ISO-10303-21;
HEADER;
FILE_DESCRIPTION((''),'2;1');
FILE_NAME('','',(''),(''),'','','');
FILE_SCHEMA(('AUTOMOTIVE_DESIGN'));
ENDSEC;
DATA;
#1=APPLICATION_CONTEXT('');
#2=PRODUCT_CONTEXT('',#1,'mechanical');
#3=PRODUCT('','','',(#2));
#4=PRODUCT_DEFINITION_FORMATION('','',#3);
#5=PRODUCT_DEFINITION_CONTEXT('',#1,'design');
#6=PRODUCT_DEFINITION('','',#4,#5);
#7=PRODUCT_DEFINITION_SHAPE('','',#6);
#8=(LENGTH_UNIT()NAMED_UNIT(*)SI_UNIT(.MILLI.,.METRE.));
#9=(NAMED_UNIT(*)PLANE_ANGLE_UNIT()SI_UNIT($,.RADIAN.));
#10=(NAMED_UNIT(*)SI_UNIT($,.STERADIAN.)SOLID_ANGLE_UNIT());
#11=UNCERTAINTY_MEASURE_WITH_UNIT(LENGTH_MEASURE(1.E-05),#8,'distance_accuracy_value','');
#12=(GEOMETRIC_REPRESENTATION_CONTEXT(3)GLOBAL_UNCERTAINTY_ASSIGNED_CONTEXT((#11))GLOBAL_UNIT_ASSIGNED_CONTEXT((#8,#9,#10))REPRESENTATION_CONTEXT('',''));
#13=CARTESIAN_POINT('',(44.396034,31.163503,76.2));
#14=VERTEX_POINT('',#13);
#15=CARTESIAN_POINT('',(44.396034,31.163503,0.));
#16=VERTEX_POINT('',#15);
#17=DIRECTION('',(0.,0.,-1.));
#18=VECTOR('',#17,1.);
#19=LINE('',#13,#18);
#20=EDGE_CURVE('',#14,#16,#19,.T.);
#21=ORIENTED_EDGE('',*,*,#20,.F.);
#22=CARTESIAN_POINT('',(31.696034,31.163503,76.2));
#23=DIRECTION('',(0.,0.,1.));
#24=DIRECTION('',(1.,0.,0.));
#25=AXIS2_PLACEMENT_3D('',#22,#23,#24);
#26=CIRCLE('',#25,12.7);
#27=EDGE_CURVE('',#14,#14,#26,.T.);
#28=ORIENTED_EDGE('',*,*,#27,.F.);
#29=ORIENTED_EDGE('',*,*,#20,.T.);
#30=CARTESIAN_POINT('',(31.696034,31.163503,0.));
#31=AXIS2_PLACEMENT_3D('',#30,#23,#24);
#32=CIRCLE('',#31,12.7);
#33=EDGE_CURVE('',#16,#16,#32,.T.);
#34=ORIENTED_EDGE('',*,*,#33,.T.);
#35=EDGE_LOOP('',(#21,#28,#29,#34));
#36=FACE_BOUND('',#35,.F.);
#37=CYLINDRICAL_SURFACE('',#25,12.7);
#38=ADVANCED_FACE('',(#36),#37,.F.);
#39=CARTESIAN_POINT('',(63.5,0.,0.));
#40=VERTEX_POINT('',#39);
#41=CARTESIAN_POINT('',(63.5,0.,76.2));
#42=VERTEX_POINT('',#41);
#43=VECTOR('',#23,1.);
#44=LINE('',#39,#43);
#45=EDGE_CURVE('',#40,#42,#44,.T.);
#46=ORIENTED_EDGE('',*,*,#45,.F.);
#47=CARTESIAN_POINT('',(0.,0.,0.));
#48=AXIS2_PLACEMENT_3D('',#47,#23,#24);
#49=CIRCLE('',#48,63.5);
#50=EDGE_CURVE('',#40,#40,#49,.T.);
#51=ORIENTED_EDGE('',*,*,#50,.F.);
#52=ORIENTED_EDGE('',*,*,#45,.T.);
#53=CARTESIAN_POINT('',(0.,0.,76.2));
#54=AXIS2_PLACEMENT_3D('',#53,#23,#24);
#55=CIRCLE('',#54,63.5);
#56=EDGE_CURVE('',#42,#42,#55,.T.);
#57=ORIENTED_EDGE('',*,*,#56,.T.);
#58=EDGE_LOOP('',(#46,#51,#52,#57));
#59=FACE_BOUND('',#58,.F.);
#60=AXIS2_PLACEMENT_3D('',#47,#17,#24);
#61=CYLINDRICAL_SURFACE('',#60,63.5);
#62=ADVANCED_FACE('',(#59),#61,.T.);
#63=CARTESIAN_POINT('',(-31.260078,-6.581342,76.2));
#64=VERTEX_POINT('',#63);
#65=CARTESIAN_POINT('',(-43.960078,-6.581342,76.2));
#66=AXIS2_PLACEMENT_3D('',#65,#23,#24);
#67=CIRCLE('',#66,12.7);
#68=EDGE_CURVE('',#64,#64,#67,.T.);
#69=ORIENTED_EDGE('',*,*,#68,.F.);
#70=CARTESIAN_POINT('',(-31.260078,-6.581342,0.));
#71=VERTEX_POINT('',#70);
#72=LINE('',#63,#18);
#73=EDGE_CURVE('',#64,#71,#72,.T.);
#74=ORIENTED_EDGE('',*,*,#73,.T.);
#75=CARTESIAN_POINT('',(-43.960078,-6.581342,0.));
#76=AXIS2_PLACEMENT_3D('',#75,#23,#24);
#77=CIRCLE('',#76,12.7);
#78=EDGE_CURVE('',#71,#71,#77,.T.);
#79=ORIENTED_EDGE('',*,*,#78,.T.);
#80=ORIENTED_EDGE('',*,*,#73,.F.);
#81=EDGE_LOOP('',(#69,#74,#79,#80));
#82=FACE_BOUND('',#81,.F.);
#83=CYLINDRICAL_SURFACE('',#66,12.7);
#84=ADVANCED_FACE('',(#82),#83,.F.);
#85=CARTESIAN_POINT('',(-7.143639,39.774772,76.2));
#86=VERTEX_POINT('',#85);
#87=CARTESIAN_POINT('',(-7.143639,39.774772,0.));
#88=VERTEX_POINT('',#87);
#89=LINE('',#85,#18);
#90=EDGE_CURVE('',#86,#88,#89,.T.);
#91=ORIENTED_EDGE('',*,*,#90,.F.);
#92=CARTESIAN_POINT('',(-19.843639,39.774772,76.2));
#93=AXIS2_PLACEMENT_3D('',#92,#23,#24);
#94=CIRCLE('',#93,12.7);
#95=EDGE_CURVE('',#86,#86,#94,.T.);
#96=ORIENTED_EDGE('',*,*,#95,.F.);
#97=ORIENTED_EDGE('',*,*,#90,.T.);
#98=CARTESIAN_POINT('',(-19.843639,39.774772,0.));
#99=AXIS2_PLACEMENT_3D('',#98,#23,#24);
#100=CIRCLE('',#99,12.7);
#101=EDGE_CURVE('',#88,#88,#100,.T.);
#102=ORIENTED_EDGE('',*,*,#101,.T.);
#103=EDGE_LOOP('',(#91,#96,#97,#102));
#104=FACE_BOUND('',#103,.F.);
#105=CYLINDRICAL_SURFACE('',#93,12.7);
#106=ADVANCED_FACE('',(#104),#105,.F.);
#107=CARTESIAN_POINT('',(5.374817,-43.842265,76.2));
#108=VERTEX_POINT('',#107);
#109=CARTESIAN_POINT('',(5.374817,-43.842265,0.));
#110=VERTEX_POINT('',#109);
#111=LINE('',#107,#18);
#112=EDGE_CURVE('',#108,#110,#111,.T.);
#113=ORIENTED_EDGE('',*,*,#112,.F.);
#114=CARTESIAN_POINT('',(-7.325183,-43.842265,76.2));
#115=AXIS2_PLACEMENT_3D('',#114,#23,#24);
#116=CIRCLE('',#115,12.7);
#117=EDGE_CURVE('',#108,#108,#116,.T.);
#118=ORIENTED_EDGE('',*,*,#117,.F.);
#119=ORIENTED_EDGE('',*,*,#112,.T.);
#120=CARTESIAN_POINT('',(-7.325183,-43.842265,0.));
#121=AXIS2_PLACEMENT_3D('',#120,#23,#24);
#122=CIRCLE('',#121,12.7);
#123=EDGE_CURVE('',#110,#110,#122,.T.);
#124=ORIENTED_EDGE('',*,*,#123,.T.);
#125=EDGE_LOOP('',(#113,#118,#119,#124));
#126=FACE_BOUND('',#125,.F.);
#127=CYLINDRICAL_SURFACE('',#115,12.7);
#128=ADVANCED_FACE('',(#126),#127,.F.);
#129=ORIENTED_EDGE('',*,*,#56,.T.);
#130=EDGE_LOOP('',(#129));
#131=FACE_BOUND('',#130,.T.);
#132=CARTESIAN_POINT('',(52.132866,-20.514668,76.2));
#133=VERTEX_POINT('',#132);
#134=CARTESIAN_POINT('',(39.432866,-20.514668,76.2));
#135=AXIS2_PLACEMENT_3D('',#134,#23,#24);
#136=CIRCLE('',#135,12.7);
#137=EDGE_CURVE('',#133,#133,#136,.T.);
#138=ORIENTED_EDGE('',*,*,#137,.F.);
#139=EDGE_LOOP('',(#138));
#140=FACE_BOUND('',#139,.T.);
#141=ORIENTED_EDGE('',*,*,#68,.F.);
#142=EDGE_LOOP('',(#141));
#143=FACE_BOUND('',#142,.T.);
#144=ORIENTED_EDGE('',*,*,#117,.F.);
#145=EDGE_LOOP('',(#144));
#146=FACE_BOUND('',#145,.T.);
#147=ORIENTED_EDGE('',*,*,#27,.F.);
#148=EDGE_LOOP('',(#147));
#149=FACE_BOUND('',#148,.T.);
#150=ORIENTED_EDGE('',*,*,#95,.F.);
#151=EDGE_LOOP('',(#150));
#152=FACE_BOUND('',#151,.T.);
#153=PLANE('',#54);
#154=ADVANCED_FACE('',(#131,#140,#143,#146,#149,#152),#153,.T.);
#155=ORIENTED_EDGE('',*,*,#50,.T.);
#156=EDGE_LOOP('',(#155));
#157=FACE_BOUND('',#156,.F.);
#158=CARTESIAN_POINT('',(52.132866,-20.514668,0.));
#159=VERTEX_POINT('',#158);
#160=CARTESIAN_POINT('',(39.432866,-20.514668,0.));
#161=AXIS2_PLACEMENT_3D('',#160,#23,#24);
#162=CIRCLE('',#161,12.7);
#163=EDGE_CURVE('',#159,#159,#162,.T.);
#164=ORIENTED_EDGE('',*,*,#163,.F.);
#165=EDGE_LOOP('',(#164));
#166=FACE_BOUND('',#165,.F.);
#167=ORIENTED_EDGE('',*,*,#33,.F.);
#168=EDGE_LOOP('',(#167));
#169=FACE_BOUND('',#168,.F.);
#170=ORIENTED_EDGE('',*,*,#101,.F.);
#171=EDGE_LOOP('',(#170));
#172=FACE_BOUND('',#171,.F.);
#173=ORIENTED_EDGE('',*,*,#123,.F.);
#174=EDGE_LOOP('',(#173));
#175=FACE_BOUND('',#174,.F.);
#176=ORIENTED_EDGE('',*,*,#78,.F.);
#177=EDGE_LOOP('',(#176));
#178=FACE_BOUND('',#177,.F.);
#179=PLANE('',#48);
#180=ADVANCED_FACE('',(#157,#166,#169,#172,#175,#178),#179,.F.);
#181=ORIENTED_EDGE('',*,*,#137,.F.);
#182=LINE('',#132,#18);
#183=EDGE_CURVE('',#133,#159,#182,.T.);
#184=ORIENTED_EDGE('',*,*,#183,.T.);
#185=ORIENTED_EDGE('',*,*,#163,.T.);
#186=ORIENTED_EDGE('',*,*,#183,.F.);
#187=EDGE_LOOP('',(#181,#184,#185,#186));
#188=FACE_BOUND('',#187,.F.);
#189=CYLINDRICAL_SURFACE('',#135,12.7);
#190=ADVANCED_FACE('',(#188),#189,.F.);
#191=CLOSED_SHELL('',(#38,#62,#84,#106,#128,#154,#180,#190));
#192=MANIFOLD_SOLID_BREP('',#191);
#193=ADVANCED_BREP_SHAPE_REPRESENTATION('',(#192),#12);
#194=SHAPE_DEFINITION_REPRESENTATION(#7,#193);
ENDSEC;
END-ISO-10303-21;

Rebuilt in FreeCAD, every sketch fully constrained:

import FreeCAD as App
import Part
import Sketcher

V = App.Vector
Q = App.Units.Quantity

doc = App.newDocument("Part")
body = doc.addObject("PartDesign::Body", "Body")

# Sketch on XY plane
sketch1 = body.newObject("Sketcher::SketchObject", "Sketch")
sketch1.AttachmentSupport = (doc.getObject("XY_Plane"), [""])
sketch1.MapMode = "FlatFace"
sketch1.addGeometry(Part.Circle(V(0, 0, 0), V(0, 0, 1), 64), False)
sketch1.addConstraint(Sketcher.Constraint("Coincident", 0, 3, -1, 1))
sketch1.addConstraint(Sketcher.Constraint("Diameter", 0, Q("5 in")))
pad1 = body.newObject("PartDesign::Pad", "Pad")
pad1.Profile = sketch1
pad1.Length = Q("3 in")

# Sketch on XY plane
sketch2 = body.newObject("Sketcher::SketchObject", "Sketch001")
sketch2.AttachmentSupport = (doc.getObject("XY_Plane"), [""])
sketch2.MapMode = "FlatFace"
sketch2.AttachmentOffset = App.Placement(V(0, 0, 3 * 25.4), App.Rotation())
sketch2.addGeometry(Part.Circle(V(-20, 40, 0), V(0, 0, 1), 13), False)
sketch2.addGeometry(Part.Circle(V(32, 31, 0), V(0, 0, 1), 13), False)
sketch2.addGeometry(Part.Circle(V(39, -21, 0), V(0, 0, 1), 13), False)
sketch2.addGeometry(Part.Circle(V(-7, -44, 0), V(0, 0, 1), 13), False)
sketch2.addGeometry(Part.Circle(V(-44, -7, 0), V(0, 0, 1), 13), False)
sketch2.addConstraint(Sketcher.Constraint("Equal", 0, 1))
sketch2.addConstraint(Sketcher.Constraint("Equal", 1, 2))
sketch2.addConstraint(Sketcher.Constraint("Equal", 2, 3))
sketch2.addConstraint(Sketcher.Constraint("Equal", 3, 4))
sketch2.addConstraint(Sketcher.Constraint("Diameter", 0, Q("1 in")))
sketch2.addConstraint(Sketcher.Constraint("DistanceY", 2, 3, 0, 3, Q("2.3736 in")))
sketch2.addConstraint(Sketcher.Constraint("DistanceX", 0, 3, -1, 1, Q("19.843639 mm")))
sketch2.addConstraint(Sketcher.Constraint("DistanceY", -1, 1, 0, 3, Q("39.774772 mm")))
sketch2.addConstraint(Sketcher.Constraint("DistanceY", 4, 3, -1, 1, Q("6.581342 mm")))
sketch2.addConstraint(Sketcher.Constraint("DistanceY", 1, 3, 0, 3, Q("8.611269 mm")))
sketch2.addConstraint(Sketcher.Constraint("DistanceX", 1, 3, 2, 3, Q("7.736831 mm")))
sketch2.addConstraint(Sketcher.Constraint("DistanceX", 3, 3, 2, 3, Q("46.758049 mm")))
sketch2.addConstraint(Sketcher.Constraint("DistanceX", 4, 3, 0, 3, Q("24.116439 mm")))
sketch2.addConstraint(Sketcher.Constraint("DistanceX", -1, 1, 1, 3, Q("31.696034 mm")))
sketch2.addConstraint(Sketcher.Constraint("DistanceY", 3, 3, -1, 1, Q("43.842265 mm")))
pocket1 = body.newObject("PartDesign::Pocket", "Pocket")
pocket1.Profile = sketch2
pocket1.Type = "ThroughAll"

doc.recompute()
